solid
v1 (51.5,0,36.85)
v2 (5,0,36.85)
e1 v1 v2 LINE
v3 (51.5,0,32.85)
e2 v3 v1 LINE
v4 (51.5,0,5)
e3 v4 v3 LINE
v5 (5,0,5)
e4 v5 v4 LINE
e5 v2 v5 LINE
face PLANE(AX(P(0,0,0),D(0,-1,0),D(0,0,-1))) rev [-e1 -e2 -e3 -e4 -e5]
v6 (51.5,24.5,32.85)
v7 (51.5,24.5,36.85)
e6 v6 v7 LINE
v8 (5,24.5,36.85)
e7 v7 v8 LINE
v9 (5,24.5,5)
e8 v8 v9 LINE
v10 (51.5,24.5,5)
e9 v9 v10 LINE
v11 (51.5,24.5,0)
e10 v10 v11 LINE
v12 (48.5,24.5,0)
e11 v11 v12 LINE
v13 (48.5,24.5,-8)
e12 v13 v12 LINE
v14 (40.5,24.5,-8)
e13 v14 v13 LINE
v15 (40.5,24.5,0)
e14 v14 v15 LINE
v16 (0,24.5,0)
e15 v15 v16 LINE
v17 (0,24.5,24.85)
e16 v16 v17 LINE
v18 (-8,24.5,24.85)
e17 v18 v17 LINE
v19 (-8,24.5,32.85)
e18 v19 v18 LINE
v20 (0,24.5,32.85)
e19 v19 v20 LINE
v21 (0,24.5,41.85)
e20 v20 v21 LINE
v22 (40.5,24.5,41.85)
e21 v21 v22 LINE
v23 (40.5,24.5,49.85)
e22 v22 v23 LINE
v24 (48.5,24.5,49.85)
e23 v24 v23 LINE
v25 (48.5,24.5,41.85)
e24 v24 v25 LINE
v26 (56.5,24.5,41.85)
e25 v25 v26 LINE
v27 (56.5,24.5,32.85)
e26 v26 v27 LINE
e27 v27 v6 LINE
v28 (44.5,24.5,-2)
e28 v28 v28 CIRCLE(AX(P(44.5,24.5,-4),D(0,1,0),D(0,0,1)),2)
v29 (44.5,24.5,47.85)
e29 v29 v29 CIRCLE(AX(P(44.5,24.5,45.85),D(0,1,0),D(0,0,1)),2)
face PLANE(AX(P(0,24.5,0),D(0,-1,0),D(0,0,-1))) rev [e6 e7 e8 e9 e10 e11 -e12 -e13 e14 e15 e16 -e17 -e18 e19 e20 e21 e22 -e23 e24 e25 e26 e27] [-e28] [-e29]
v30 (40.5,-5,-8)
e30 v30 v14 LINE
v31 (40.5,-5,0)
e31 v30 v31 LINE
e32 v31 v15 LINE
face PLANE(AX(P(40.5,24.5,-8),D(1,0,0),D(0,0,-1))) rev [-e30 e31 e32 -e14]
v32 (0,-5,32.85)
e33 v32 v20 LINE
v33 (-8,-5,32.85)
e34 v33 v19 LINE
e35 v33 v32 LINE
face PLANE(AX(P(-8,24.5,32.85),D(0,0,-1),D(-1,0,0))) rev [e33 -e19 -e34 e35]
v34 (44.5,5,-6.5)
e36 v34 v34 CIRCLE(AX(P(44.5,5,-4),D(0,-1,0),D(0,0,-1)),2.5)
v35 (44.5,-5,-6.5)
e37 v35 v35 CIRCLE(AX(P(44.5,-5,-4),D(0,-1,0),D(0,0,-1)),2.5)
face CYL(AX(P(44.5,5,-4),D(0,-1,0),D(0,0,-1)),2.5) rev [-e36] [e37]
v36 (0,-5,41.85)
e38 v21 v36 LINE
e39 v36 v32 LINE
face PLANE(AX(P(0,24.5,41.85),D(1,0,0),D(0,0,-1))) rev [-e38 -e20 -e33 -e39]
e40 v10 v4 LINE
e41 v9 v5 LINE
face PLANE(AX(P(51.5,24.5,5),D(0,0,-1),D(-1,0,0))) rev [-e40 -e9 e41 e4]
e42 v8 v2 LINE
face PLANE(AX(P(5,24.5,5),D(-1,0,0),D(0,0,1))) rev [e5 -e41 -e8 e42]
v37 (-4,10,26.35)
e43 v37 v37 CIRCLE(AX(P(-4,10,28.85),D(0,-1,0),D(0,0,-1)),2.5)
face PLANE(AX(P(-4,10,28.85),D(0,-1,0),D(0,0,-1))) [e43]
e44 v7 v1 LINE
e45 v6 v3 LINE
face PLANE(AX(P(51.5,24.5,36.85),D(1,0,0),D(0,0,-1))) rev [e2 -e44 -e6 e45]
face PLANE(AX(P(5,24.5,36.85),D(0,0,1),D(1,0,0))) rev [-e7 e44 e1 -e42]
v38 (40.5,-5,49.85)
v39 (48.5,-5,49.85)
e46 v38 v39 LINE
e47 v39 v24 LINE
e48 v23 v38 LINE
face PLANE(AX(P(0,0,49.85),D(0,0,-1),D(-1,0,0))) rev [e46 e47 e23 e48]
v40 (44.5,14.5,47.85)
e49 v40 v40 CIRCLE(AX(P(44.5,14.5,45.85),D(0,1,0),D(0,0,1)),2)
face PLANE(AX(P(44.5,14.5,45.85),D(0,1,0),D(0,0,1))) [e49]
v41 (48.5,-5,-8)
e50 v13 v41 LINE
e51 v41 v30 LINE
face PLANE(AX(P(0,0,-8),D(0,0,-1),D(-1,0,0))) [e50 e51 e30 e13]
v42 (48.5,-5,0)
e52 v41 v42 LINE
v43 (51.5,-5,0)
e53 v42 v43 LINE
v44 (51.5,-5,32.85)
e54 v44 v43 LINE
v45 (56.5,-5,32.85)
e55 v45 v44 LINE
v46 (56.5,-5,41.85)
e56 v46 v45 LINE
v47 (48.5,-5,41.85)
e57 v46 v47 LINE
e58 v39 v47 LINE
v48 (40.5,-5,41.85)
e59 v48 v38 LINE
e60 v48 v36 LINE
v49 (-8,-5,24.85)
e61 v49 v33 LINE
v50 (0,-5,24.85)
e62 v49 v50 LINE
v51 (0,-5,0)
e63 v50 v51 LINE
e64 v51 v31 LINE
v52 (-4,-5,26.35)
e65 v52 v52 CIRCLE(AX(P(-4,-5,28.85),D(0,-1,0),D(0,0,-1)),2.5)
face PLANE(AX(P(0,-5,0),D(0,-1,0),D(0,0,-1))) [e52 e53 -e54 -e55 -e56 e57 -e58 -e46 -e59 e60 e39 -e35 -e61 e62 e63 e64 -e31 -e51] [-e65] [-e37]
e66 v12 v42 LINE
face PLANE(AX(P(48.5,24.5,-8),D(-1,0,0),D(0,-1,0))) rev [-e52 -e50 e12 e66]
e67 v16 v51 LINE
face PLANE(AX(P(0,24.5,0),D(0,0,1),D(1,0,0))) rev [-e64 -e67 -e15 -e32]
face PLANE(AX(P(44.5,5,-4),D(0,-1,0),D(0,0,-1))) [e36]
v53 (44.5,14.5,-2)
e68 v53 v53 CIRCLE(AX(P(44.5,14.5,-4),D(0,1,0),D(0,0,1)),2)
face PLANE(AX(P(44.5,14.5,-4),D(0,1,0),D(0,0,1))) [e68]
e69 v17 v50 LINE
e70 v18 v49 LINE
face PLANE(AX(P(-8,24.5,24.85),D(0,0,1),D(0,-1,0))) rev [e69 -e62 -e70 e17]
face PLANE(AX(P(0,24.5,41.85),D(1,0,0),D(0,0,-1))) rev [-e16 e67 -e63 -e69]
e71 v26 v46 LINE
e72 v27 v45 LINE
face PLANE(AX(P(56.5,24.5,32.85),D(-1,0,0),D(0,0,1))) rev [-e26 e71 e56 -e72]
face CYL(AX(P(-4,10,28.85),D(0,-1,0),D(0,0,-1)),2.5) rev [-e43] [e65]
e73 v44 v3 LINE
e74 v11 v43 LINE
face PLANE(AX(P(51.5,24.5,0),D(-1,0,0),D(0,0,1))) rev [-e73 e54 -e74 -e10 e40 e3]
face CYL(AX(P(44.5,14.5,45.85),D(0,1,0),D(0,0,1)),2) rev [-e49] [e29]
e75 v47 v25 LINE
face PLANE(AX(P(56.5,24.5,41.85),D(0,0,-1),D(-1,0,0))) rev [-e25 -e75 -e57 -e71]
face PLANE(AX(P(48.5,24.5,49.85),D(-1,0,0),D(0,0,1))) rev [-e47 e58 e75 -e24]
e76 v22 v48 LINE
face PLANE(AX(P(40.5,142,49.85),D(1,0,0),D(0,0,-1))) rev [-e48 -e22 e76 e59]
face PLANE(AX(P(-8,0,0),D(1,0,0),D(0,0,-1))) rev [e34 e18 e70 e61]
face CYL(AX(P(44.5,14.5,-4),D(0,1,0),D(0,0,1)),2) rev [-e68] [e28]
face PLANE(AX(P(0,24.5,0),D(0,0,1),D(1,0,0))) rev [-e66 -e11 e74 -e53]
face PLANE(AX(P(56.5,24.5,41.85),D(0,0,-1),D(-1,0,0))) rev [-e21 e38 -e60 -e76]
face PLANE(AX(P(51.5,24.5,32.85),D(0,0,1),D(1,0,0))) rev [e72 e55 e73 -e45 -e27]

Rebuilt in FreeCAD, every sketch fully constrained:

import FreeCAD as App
import Part
import Sketcher
from FreeCAD import Vector
Q = App.Units.Quantity

doc = App.newDocument("Part")
params = doc.addObject("Spreadsheet::Sheet", "Params")
for row, (alias, value) in enumerate([
    ("sketch1_width", "5 mm"),
    ("sketch1_height", "9 mm"),
    ("sketch1_height2", "4 mm"),
    ("sketch1_width2", "51.5 mm"),
    ("sketch1_width3", "46.5 mm"),
    ("pad1_length", "24.5 mm"),
    ("sketch2_width", "103 mm"),
    ("sketch2_height", "41.85 mm"),
    ("pad2_length", "5 mm"),
    ("sketch3_width", "46.5 mm"),
    ("sketch3_height", "27.85 mm"),
    ("pocket1_length", "26 mm"),
    ("sketch4_width", "8 mm"),
    ("sketch4_height", "3 mm"),
    ("pad3_length", "8 mm"),
    ("sketch5_diameter", "5 mm"),
    ("pocket2_length", "8 mm"),
    ("sketch6_width", "8 mm"),
    ("sketch6_height", "3 mm"),
    ("pad4_length", "8 mm"),
    ("sketch7_diameter", "5 mm"),
    ("pocket3_length", "8 mm"),
    ("sketch8_height", "5 mm"),
    ("sketch8_width", "11.5 mm"),
    ("pocket4_length", "8 mm"),
    ("sketch9_width", "8 mm"),
    ("sketch9_height", "3 mm"),
    ("pad5_length", "8 mm"),
    ("sketch10_diameter", "5 mm"),
    ("pocket5_length", "8 mm"),
    ("sketch11_width", "8 mm"),
    ("sketch11_height", "29.5 mm"),
    ("pad6_length", "8 mm"),
    ("sketch12_width", "14 mm"),
    ("sketch12_height", "29.5 mm"),
    ("pad7_length", "8 mm"),
    ("sketch13_diameter", "4 mm"),
    ("pocket6_length", "10 mm"),
    ("sketch14_height", "8 mm"),
    ("sketch14_width", "29.5 mm"),
    ("pad8_length", "8 mm"),
    ("sketch15_width", "13 mm"),
    ("pad9_length", "88 mm"),
    ("sketch16_width", "5 mm"),
    ("sketch16_height", "9 mm"),
    ("sketch16_width2", "51.5 mm"),
    ("sketch16_height2", "40.85 mm"),
    ("pocket7_length", "48 mm"),
    ("sketch17_diameter", "5 mm"),
    ("pocket8_length", "10 mm"),
    ("sketch18_width", "8 mm"),
    ("sketch18_height", "3 mm"),
    ("pocket9_length", "8 mm"),
    ("sketch19_height", "8 mm"),
    ("sketch19_width", "29.5 mm"),
    ("pad10_length", "8 mm"),
    ("sketch20_diameter", "5 mm"),
    ("pocket10_length", "15 mm"),
    ("sketch21_width", "13 mm"),
    ("pocket11_length", "88 mm"),
    ("sketch22_width", "14 mm"),
    ("sketch22_height", "8 mm"),
    ("pocket12_length", "147 mm"),
], start=1):
    params.set(f"A{row}", alias)
    params.set(f"B{row}", "=" + value)
    params.setAlias(f"B{row}", alias)

body = doc.addObject("PartDesign::Body", "Body")

# Sketch on XZ plane
sketch1 = body.newObject("Sketcher::SketchObject", "Sketch")
sketch1.AttachmentSupport = (doc.getObject("XZ_Plane"), [""])
sketch1.MapMode = "FlatFace"
sketch1.addGeometry(Part.LineSegment(Vector(51.5, 0, 0), Vector(0, 0, 0)), False)
sketch1.addGeometry(Part.LineSegment(Vector(0, 0, 0), Vector(0, 41.85, 0)), False)
sketch1.addGeometry(Part.LineSegment(Vector(0, 41.85, 0), Vector(56.5, 41.85, 0)), False)
sketch1.addGeometry(Part.LineSegment(Vector(56.5, 41.85, 0), Vector(56.5, 32.85, 0)), False)
sketch1.addGeometry(Part.LineSegment(Vector(56.5, 32.85, 0), Vector(51.5, 32.85, 0)), False)
sketch1.addGeometry(Part.LineSegment(Vector(51.5, 32.85, 0), Vector(51.5, 36.85, 0)), False)
sketch1.addGeometry(Part.LineSegment(Vector(51.5, 36.85, 0), Vector(5, 36.85, 0)), False)
sketch1.addGeometry(Part.LineSegment(Vector(5, 36.85, 0), Vector(5, 5, 0)), False)
sketch1.addGeometry(Part.LineSegment(Vector(5, 5, 0), Vector(51.5, 5, 0)), False)
sketch1.addGeometry(Part.LineSegment(Vector(51.5, 5, 0), Vector(51.5, 0, 0)), False)
sketch1.addConstraint(Sketcher.Constraint("Coincident", 0, 2, 1, 1))
sketch1.addConstraint(Sketcher.Constraint("Coincident", 1, 2, 2, 1))
sketch1.addConstraint(Sketcher.Constraint("Coincident", 2, 2, 3, 1))
sketch1.addConstraint(Sketcher.Constraint("Coincident", 3, 2, 4, 1))
sketch1.addConstraint(Sketcher.Constraint("Coincident", 4, 2, 5, 1))
sketch1.addConstraint(Sketcher.Constraint("Coincident", 5, 2, 6, 1))
sketch1.addConstraint(Sketcher.Constraint("Coincident", 6, 2, 7, 1))
sketch1.addConstraint(Sketcher.Constraint("Coincident", 7, 2, 8, 1))
sketch1.addConstraint(Sketcher.Constraint("Coincident", 8, 2, 9, 1))
sketch1.addConstraint(Sketcher.Constraint("Coincident", 9, 2, 0, 1))
sketch1.addConstraint(Sketcher.Constraint("Horizontal", 0))
sketch1.addConstraint(Sketcher.Constraint("Vertical", 1))
sketch1.addConstraint(Sketcher.Constraint("Horizontal", 2))
sketch1.addConstraint(Sketcher.Constraint("Vertical", 3))
sketch1.addConstraint(Sketcher.Constraint("Horizontal", 4))
sketch1.addConstraint(Sketcher.Constraint("Vertical", 5))
sketch1.addConstraint(Sketcher.Constraint("Horizontal", 6))
sketch1.addConstraint(Sketcher.Constraint("Vertical", 7))
sketch1.addConstraint(Sketcher.Constraint("Horizontal", 8))
sketch1.addConstraint(Sketcher.Constraint("Vertical", 9))
sketch1.addConstraint(Sketcher.Constraint("Coincident", 0, 2, -1, 1))
sketch1.addConstraint(Sketcher.Constraint("Vertical", 5, 2, 8, 2))
sketch1.addConstraint(Sketcher.Constraint("Equal", 4, 9))
sketch1.addConstraint(Sketcher.Constraint("DistanceX", 4, 2, 4, 1, Q("5 mm")))
sketch1.addConstraint(Sketcher.Constraint("DistanceY", 3, 2, 3, 1, Q("9 mm")))
sketch1.addConstraint(Sketcher.Constraint("DistanceY", 5, 1, 5, 2, Q("4 mm")))
sketch1.addConstraint(Sketcher.Constraint("DistanceX", 0, 2, 0, 1, Q("51.5 mm")))
sketch1.addConstraint(Sketcher.Constraint("DistanceX", 6, 2, 6, 1, Q("46.5 mm")))
sketch1.addConstraint(Sketcher.Constraint("DistanceY", 1, 1, 1, 2, Q("41.85 mm")))
sketch1.setExpression("Constraints[23]", "Params.sketch1_width")
sketch1.setExpression("Constraints[24]", "Params.sketch1_height")
sketch1.setExpression("Constraints[25]", "Params.sketch1_height2")
sketch1.setExpression("Constraints[26]", "Params.sketch1_width2")
sketch1.setExpression("Constraints[27]", "Params.sketch1_width3")
pad1 = body.newObject("PartDesign::Pad", "Pad")
pad1.Profile = sketch1
pad1.setExpression("Length", "Params.pad1_length")
pad1.Reversed = True

# Sketch on XZ plane
sketch2 = body.newObject("Sketcher::SketchObject", "Sketch001")
sketch2.AttachmentSupport = (doc.getObject("XZ_Plane"), [""])
sketch2.MapMode = "FlatFace"
sketch2.addGeometry(Part.LineSegment(Vector(0, 41.85, 0), Vector(0, 0, 0)), False)
sketch2.addGeometry(Part.LineSegment(Vector(0, 0, 0), Vector(103, 0, 0)), False)
sketch2.addGeometry(Part.LineSegment(Vector(103, 0, 0), Vector(103, 41.85, 0)), False)
sketch2.addGeometry(Part.LineSegment(Vector(103, 41.85, 0), Vector(0, 41.85, 0)), False)
sketch2.addConstraint(Sketcher.Constraint("Coincident", 0, 2, 1, 1))
sketch2.addConstraint(Sketcher.Constraint("Coincident", 1, 2, 2, 1))
sketch2.addConstraint(Sketcher.Constraint("Coincident", 2, 2, 3, 1))
sketch2.addConstraint(Sketcher.Constraint("Coincident", 3, 2, 0, 1))
sketch2.addConstraint(Sketcher.Constraint("Vertical", 0))
sketch2.addConstraint(Sketcher.Constraint("Horizontal", 1))
sketch2.addConstraint(Sketcher.Constraint("Vertical", 2))
sketch2.addConstraint(Sketcher.Constraint("Horizontal", 3))
sketch2.addConstraint(Sketcher.Constraint("Coincident", 0, 2, -1, 1))
sketch2.addConstraint(Sketcher.Constraint("DistanceX", 1, 1, 1, 2, Q("103 mm")))
sketch2.addConstraint(Sketcher.Constraint("DistanceY", 0, 2, 0, 1, Q("41.85 mm")))
sketch2.setExpression("Constraints[9]", "Params.sketch2_width")
sketch2.setExpression("Constraints[10]", "Params.sketch2_height")
pad2 = body.newObject("PartDesign::Pad", "Pad001")
pad2.Profile = sketch2
pad2.setExpression("Length", "Params.pad2_length")

# Sketch on XZ plane
sketch3 = body.newObject("Sketcher::SketchObject", "Sketch002")
sketch3.AttachmentSupport = (doc.getObject("XZ_Plane"), [""])
sketch3.MapMode = "FlatFace"
sketch3.addGeometry(Part.LineSegment(Vector(51.5, 5, 0), Vector(51.5, 32.85, 0)), False)
sketch3.addGeometry(Part.LineSegment(Vector(51.5, 32.85, 0), Vector(98, 32.85, 0)), False)
sketch3.addGeometry(Part.LineSegment(Vector(98, 32.85, 0), Vector(98, 5, 0)), False)
sketch3.addGeometry(Part.LineSegment(Vector(98, 5, 0), Vector(51.5, 5, 0)), False)
sketch3.addConstraint(Sketcher.Constraint("Coincident", 0, 2, 1, 1))
sketch3.addConstraint(Sketcher.Constraint("Coincident", 1, 2, 2, 1))
sketch3.addConstraint(Sketcher.Constraint("Coincident", 2, 2, 3, 1))
sketch3.addConstraint(Sketcher.Constraint("Coincident", 3, 2, 0, 1))
sketch3.addConstraint(Sketcher.Constraint("Vertical", 0))
sketch3.addConstraint(Sketcher.Constraint("Horizontal", 1))
sketch3.addConstraint(Sketcher.Constraint("Vertical", 2))
sketch3.addConstraint(Sketcher.Constraint("Horizontal", 3))
sketch3.addConstraint(Sketcher.Constraint("DistanceX", 1, 1, 1, 2, Q("46.5 mm")))
sketch3.addConstraint(Sketcher.Constraint("DistanceX", -1, 1, 1, 2, Q("98 mm")))
sketch3.addConstraint(Sketcher.Constraint("DistanceY", -1, 1, 2, 2, Q("5 mm")))
sketch3.addConstraint(Sketcher.Constraint("DistanceY", 0, 1, 0, 2, Q("27.85 mm")))
sketch3.setExpression("Constraints[8]", "Params.sketch3_width")
sketch3.setExpression("Constraints[11]", "Params.sketch3_height")
pocket1 = body.newObject("PartDesign::Pocket", "Pocket")
pocket1.Profile = sketch3
pocket1.setExpression("Length", "Params.pocket1_length")
pocket1.Reversed = True

# Sketch on XY plane
sketch4 = body.newObject("Sketcher::SketchObject", "Sketch003")
sketch4.AttachmentSupport = (doc.getObject("XY_Plane"), [""])
sketch4.MapMode = "FlatFace"
sketch4.AttachmentOffset = App.Placement(Vector(0, 0, 41.85), App.Rotation())
sketch4.addGeometry(Part.LineSegment(Vector(0, -2, 0), Vector(0, -5, 0)), False)
sketch4.addGeometry(Part.LineSegment(Vector(0, -5, 0), Vector(8, -5, 0)), False)
sketch4.addGeometry(Part.LineSegment(Vector(8, -5, 0), Vector(8, -2, 0)), False)
sketch4.addGeometry(Part.LineSegment(Vector(8, -2, 0), Vector(0, -2, 0)), False)
sketch4.addConstraint(Sketcher.Constraint("Coincident", 0, 2, 1, 1))
sketch4.addConstraint(Sketcher.Constraint("Coincident", 1, 2, 2, 1))
sketch4.addConstraint(Sketcher.Constraint("Coincident", 2, 2, 3, 1))
sketch4.addConstraint(Sketcher.Constraint("Coincident", 3, 2, 0, 1))
sketch4.addConstraint(Sketcher.Constraint("Vertical", 0))
sketch4.addConstraint(Sketcher.Constraint("Horizontal", 1))
sketch4.addConstraint(Sketcher.Constraint("Vertical", 2))
sketch4.addConstraint(Sketcher.Constraint("Horizontal", 3))
sketch4.addConstraint(Sketcher.Constraint("PointOnObject", 0, 2, -2))
sketch4.addConstraint(Sketcher.Constraint("DistanceX", 1, 1, 1, 2, Q("8 mm")))
sketch4.addConstraint(Sketcher.Constraint("DistanceY", 0, 2, 0, 1, Q("3 mm")))
sketch4.addConstraint(Sketcher.Constraint("DistanceY", 0, 2, -1, 1, Q("5 mm")))
sketch4.setExpression("Constraints[9]", "Params.sketch4_width")
sketch4.setExpression("Constraints[10]", "Params.sketch4_height")
pad3 = body.newObject("PartDesign::Pad", "Pad002")
pad3.Profile = sketch4
pad3.setExpression("Length", "Params.pad3_length")

# Sketch on XZ plane
sketch5 = body.newObject("Sketcher::SketchObject", "Sketch004")
sketch5.AttachmentSupport = (doc.getObject("XZ_Plane"), [""])
sketch5.MapMode = "FlatFace"
sketch5.AttachmentOffset = App.Placement(Vector(0, 0, 2), App.Rotation())
sketch5.addGeometry(Part.Circle(Vector(4, 45.85, 0), Vector(0, 0, 1), 2.5), False)
sketch5.addConstraint(Sketcher.Constraint("Diameter", 0, Q("5 mm")))
sketch5.addConstraint(Sketcher.Constraint("DistanceX", -1, 1, 0, 3, Q("4 mm")))
sketch5.addConstraint(Sketcher.Constraint("DistanceY", -1, 1, 0, 3, Q("45.85 mm")))
sketch5.setExpression("Constraints[0]", "Params.sketch5_diameter")
pocket2 = body.newObject("PartDesign::Pocket", "Pocket001")
pocket2.Profile = sketch5
pocket2.setExpression("Length", "Params.pocket2_length")
pocket2.Reversed = True

# Sketch on XY plane
sketch6 = body.newObject("Sketcher::SketchObject", "Sketch005")
sketch6.AttachmentSupport = (doc.getObject("XY_Plane"), [""])
sketch6.MapMode = "FlatFace"
sketch6.addGeometry(Part.LineSegment(Vector(103, -2, 0), Vector(103, -5, 0)), False)
sketch6.addGeometry(Part.LineSegment(Vector(103, -5, 0), Vector(95, -5, 0)), False)
sketch6.addGeometry(Part.LineSegment(Vector(95, -5, 0), Vector(95, -2, 0)), False)
sketch6.addGeometry(Part.LineSegment(Vector(95, -2, 0), Vector(103, -2, 0)), False)
sketch6.addConstraint(Sketcher.Constraint("Coincident", 0, 2, 1, 1))
sketch6.addConstraint(Sketcher.Constraint("Coincident", 1, 2, 2, 1))
sketch6.addConstraint(Sketcher.Constraint("Coincident", 2, 2, 3, 1))
sketch6.addConstraint(Sketcher.Constraint("Coincident", 3, 2, 0, 1))
sketch6.addConstraint(Sketcher.Constraint("Vertical", 0))
sketch6.addConstraint(Sketcher.Constraint("Horizontal", 1))
sketch6.addConstraint(Sketcher.Constraint("Vertical", 2))
sketch6.addConstraint(Sketcher.Constraint("Horizontal", 3))
sketch6.addConstraint(Sketcher.Constraint("DistanceX", 1, 2, 1, 1, Q("8 mm")))
sketch6.addConstraint(Sketcher.Constraint("DistanceY", 0, 2, 0, 1, Q("3 mm")))
sketch6.addConstraint(Sketcher.Constraint("DistanceX", -1, 1, 0, 2, Q("103 mm")))
sketch6.addConstraint(Sketcher.Constraint("DistanceY", 0, 2, -1, 1, Q("5 mm")))
sketch6.setExpression("Constraints[8]", "Params.sketch6_width")
sketch6.setExpression("Constraints[9]", "Params.sketch6_height")
pad4 = body.newObject("PartDesign::Pad", "Pad003")
pad4.Profile = sketch6
pad4.setExpression("Length", "Params.pad4_length")
pad4.Reversed = True

# Sketch on XZ plane
sketch7 = body.newObject("Sketcher::SketchObject", "Sketch006")
sketch7.AttachmentSupport = (doc.getObject("XZ_Plane"), [""])
sketch7.MapMode = "FlatFace"
sketch7.AttachmentOffset = App.Placement(Vector(0, 0, 2), App.Rotation())
sketch7.addGeometry(Part.Circle(Vector(99, -3.996681, 0), Vector(0, 0, 1), 2.5), False)
sketch7.addConstraint(Sketcher.Constraint("Diameter", 0, Q("5 mm")))
sketch7.addConstraint(Sketcher.Constraint("DistanceX", -1, 1, 0, 3, Q("99 mm")))
sketch7.addConstraint(Sketcher.Constraint("DistanceY", 0, 3, -1, 1, Q("3.996681 mm")))
sketch7.setExpression("Constraints[0]", "Params.sketch7_diameter")
pocket3 = body.newObject("PartDesign::Pocket", "Pocket002")
pocket3.Profile = sketch7
pocket3.setExpression("Length", "Params.pocket3_length")
pocket3.Reversed = True

# Sketch on XZ plane
sketch8 = body.newObject("Sketcher::SketchObject", "Sketch007")
sketch8.AttachmentSupport = (doc.getObject("XZ_Plane"), [""])
sketch8.MapMode = "FlatFace"
sketch8.addGeometry(Part.LineSegment(Vector(83.5, 0, 0), Vector(83.5, 5, 0)), False)
sketch8.addGeometry(Part.LineSegment(Vector(83.5, 5, 0), Vector(95, 5, 0)), False)
sketch8.addGeometry(Part.LineSegment(Vector(95, 5, 0), Vector(95, 0, 0)), False)
sketch8.addGeometry(Part.LineSegment(Vector(95, 0, 0), Vector(83.5, 0, 0)), False)
sketch8.addConstraint(Sketcher.Constraint("Coincident", 0, 2, 1, 1))
sketch8.addConstraint(Sketcher.Constraint("Coincident", 1, 2, 2, 1))
sketch8.addConstraint(Sketcher.Constraint("Coincident", 2, 2, 3, 1))
sketch8.addConstraint(Sketcher.Constraint("Coincident", 3, 2, 0, 1))
sketch8.addConstraint(Sketcher.Constraint("Vertical", 0))
sketch8.addConstraint(Sketcher.Constraint("Horizontal", 1))
sketch8.addConstraint(Sketcher.Constraint("Vertical", 2))
sketch8.addConstraint(Sketcher.Constraint("Horizontal", 3))
sketch8.addConstraint(Sketcher.Constraint("PointOnObject", 2, 2, -1))
sketch8.addConstraint(Sketcher.Constraint("DistanceY", 0, 1, 0, 2, Q("5 mm")))
sketch8.addConstraint(Sketcher.Constraint("DistanceX", 1, 1, 1, 2, Q("11.5 mm")))
sketch8.addConstraint(Sketcher.Constraint("DistanceX", -1, 1, 1, 2, Q("95 mm")))
sketch8.setExpression("Constraints[9]", "Params.sketch8_height")
sketch8.setExpression("Constraints[10]", "Params.sketch8_width")
pocket4 = body.newObject("PartDesign::Pocket", "Pocket003")
pocket4.Profile = sketch8
pocket4.setExpression("Length", "Params.pocket4_length")
pocket4.Reversed = True

# Sketch on XY plane
sketch9 = body.newObject("Sketcher::SketchObject", "Sketch008")
sketch9.AttachmentSupport = (doc.getObject("XY_Plane"), [""])
sketch9.MapMode = "FlatFace"
sketch9.addGeometry(Part.LineSegment(Vector(83.5, -2, 0), Vector(83.5, -5, 0)), False)
sketch9.addGeometry(Part.LineSegment(Vector(83.5, -5, 0), Vector(75.5, -5, 0)), False)
sketch9.addGeometry(Part.LineSegment(Vector(75.5, -5, 0), Vector(75.5, -2, 0)), False)
sketch9.addGeometry(Part.LineSegment(Vector(75.5, -2, 0), Vector(83.5, -2, 0)), False)
sketch9.addConstraint(Sketcher.Constraint("Coincident", 0, 2, 1, 1))
sketch9.addConstraint(Sketcher.Constraint("Coincident", 1, 2, 2, 1))
sketch9.addConstraint(Sketcher.Constraint("Coincident", 2, 2, 3, 1))
sketch9.addConstraint(Sketcher.Constraint("Coincident", 3, 2, 0, 1))
sketch9.addConstraint(Sketcher.Constraint("Vertical", 0))
sketch9.addConstraint(Sketcher.Constraint("Horizontal", 1))
sketch9.addConstraint(Sketcher.Constraint("Vertical", 2))
sketch9.addConstraint(Sketcher.Constraint("Horizontal", 3))
sketch9.addConstraint(Sketcher.Constraint("DistanceX", 1, 2, 1, 1, Q("8 mm")))
sketch9.addConstraint(Sketcher.Constraint("DistanceY", 0, 2, 0, 1, Q("3 mm")))
sketch9.addConstraint(Sketcher.Constraint("DistanceY", 0, 2, -1, 1, Q("5 mm")))
sketch9.addConstraint(Sketcher.Constraint("DistanceX", -1, 1, 0, 2, Q("83.5 mm")))
sketch9.setExpression("Constraints[8]", "Params.sketch9_width")
sketch9.setExpression("Constraints[9]", "Params.sketch9_height")
pad5 = body.newObject("PartDesign::Pad", "Pad004")
pad5.Profile = sketch9
pad5.setExpression("Length", "Params.pad5_length")
pad5.Reversed = True

# Sketch on XZ plane
sketch10 = body.newObject("Sketcher::SketchObject", "Sketch009")
sketch10.AttachmentSupport = (doc.getObject("XZ_Plane"), [""])
sketch10.MapMode = "FlatFace"
sketch10.AttachmentOffset = App.Placement(Vector(0, 0, 2), App.Rotation())
sketch10.addGeometry(Part.Circle(Vector(79.5, -4, 0), Vector(0, 0, 1), 2.5), False)
sketch10.addConstraint(Sketcher.Constraint("Diameter", 0, Q("5 mm")))
sketch10.addConstraint(Sketcher.Constraint("DistanceY", 0, 3, -1, 1, Q("4 mm")))
sketch10.addConstraint(Sketcher.Constraint("DistanceX", -1, 1, 0, 3, Q("79.5 mm")))
sketch10.setExpression("Constraints[0]", "Params.sketch10_diameter")
pocket5 = body.newObject("PartDesign::Pocket", "Pocket004")
pocket5.Profile = sketch10
pocket5.setExpression("Length", "Params.pocket5_length")
pocket5.Reversed = True

# Sketch on XY plane
sketch11 = body.newObject("Sketcher::SketchObject", "Sketch010")
sketch11.AttachmentSupport = (doc.getObject("XY_Plane"), [""])
sketch11.MapMode = "FlatFace"
sketch11.addGeometry(Part.LineSegment(Vector(48.5, 24.5, 0), Vector(48.5, -5, 0)), False)
sketch11.addGeometry(Part.LineSegment(Vector(48.5, -5, 0), Vector(40.5, -5, 0)), False)
sketch11.addGeometry(Part.LineSegment(Vector(40.5, -5, 0), Vector(40.5, 24.5, 0)), False)
sketch11.addGeometry(Part.LineSegment(Vector(40.5, 24.5, 0), Vector(48.5, 24.5, 0)), False)
sketch11.addConstraint(Sketcher.Constraint("Coincident", 0, 2, 1, 1))
sketch11.addConstraint(Sketcher.Constraint("Coincident", 1, 2, 2, 1))
sketch11.addConstraint(Sketcher.Constraint("Coincident", 2, 2, 3, 1))
sketch11.addConstraint(Sketcher.Constraint("Coincident", 3, 2, 0, 1))
sketch11.addConstraint(Sketcher.Constraint("Vertical", 0))
sketch11.addConstraint(Sketcher.Constraint("Horizontal", 1))
sketch11.addConstraint(Sketcher.Constraint("Vertical", 2))
sketch11.addConstraint(Sketcher.Constraint("Horizontal", 3))
sketch11.addConstraint(Sketcher.Constraint("DistanceX", 1, 2, 1, 1, Q("8 mm")))
sketch11.addConstraint(Sketcher.Constraint("DistanceY", 0, 2, 0, 1, Q("29.5 mm")))
sketch11.addConstraint(Sketcher.Constraint("DistanceY", 0, 2, -1, 1, Q("5 mm")))
sketch11.addConstraint(Sketcher.Constraint("DistanceX", -1, 1, 0, 2, Q("48.5 mm")))
sketch11.setExpression("Constraints[8]", "Params.sketch11_width")
sketch11.setExpression("Constraints[9]", "Params.sketch11_height")
pad6 = body.newObject("PartDesign::Pad", "Pad005")
pad6.Profile = sketch11
pad6.setExpression("Length", "Params.pad6_length")
pad6.Reversed = True

# Sketch on XY plane
sketch12 = body.newObject("Sketcher::SketchObject", "Sketch011")
sketch12.AttachmentSupport = (doc.getObject("XY_Plane"), [""])
sketch12.MapMode = "FlatFace"
sketch12.AttachmentOffset = App.Placement(Vector(0, 0, 41.85), App.Rotation())
sketch12.addGeometry(Part.LineSegment(Vector(34.5, 24.5, 0), Vector(34.5, -5, 0)), False)
sketch12.addGeometry(Part.LineSegment(Vector(34.5, -5, 0), Vector(48.5, -5, 0)), False)
sketch12.addGeometry(Part.LineSegment(Vector(48.5, -5, 0), Vector(48.5, 24.5, 0)), False)
sketch12.addGeometry(Part.LineSegment(Vector(48.5, 24.5, 0), Vector(34.5, 24.5, 0)), False)
sketch12.addConstraint(Sketcher.Constraint("Coincident", 0, 2, 1, 1))
sketch12.addConstraint(Sketcher.Constraint("Coincident", 1, 2, 2, 1))
sketch12.addConstraint(Sketcher.Constraint("Coincident", 2, 2, 3, 1))
sketch12.addConstraint(Sketcher.Constraint("Coincident", 3, 2, 0, 1))
sketch12.addConstraint(Sketcher.Constraint("Vertical", 0))
sketch12.addConstraint(Sketcher.Constraint("Horizontal", 1))
sketch12.addConstraint(Sketcher.Constraint("Vertical", 2))
sketch12.addConstraint(Sketcher.Constraint("Horizontal", 3))
sketch12.addConstraint(Sketcher.Constraint("DistanceX", 1, 1, 1, 2, Q("14 mm")))
sketch12.addConstraint(Sketcher.Constraint("DistanceY", 0, 2, 0, 1, Q("29.5 mm")))
sketch12.addConstraint(Sketcher.Constraint("DistanceY", 0, 2, -1, 1, Q("5 mm")))
sketch12.addConstraint(Sketcher.Constraint("DistanceX", -1, 1, 0, 2, Q("34.5 mm")))
sketch12.setExpression("Constraints[8]", "Params.sketch12_width")
sketch12.setExpression("Constraints[9]", "Params.sketch12_height")
pad7 = body.newObject("PartDesign::Pad", "Pad006")
pad7.Profile = sketch12
pad7.setExpression("Length", "Params.pad7_length")

# Sketch on XZ plane
sketch13 = body.newObject("Sketcher::SketchObject", "Sketch012")
sketch13.AttachmentSupport = (doc.getObject("XZ_Plane"), [""])
sketch13.MapMode = "FlatFace"
sketch13.AttachmentOffset = App.Placement(Vector(0, 0, -24.5), App.Rotation())
sketch13.addGeometry(Part.Circle(Vector(44.5, -4, 0), Vector(0, 0, 1), 2), False)
sketch13.addGeometry(Part.Circle(Vector(44.5, 45.85, 0), Vector(0, 0, 1), 2), False)
sketch13.addConstraint(Sketcher.Constraint("Equal", 0, 1))
sketch13.addConstraint(Sketcher.Constraint("Vertical", 0, 3, 1, 3))
sketch13.addConstraint(Sketcher.Constraint("Diameter", 0, Q("4 mm")))
sketch13.addConstraint(Sketcher.Constraint("DistanceY", 0, 3, -1, 1, Q("4 mm")))
sketch13.addConstraint(Sketcher.Constraint("DistanceX", -1, 1, 0, 3, Q("44.5 mm")))
sketch13.addConstraint(Sketcher.Constraint("DistanceY", -1, 1, 1, 3, Q("45.85 mm")))
sketch13.setExpression("Constraints[2]", "Params.sketch13_diameter")
pocket6 = body.newObject("PartDesign::Pocket", "Pocket005")
pocket6.Profile = sketch13
pocket6.setExpression("Length", "Params.pocket6_length")
pocket6.Reversed = True

# Sketch on YZ plane
sketch14 = body.newObject("Sketcher::SketchObject", "Sketch013")
sketch14.AttachmentSupport = (doc.getObject("YZ_Plane"), [""])
sketch14.MapMode = "FlatFace"
sketch14.AttachmentOffset = App.Placement(Vector(0, 0, 34.5), App.Rotation())
sketch14.addGeometry(Part.LineSegment(Vector(24.5, 41.85, 0), Vector(-5, 41.85, 0)), False)
sketch14.addGeometry(Part.LineSegment(Vector(-5, 41.85, 0), Vector(-5, 49.85, 0)), False)
sketch14.addGeometry(Part.LineSegment(Vector(-5, 49.85, 0), Vector(24.5, 49.85, 0)), False)
sketch14.addGeometry(Part.LineSegment(Vector(24.5, 49.85, 0), Vector(24.5, 41.85, 0)), False)
sketch14.addConstraint(Sketcher.Constraint("Coincident", 0, 2, 1, 1))
sketch14.addConstraint(Sketcher.Constraint("Coincident", 1, 2, 2, 1))
sketch14.addConstraint(Sketcher.Constraint("Coincident", 2, 2, 3, 1))
sketch14.addConstraint(Sketcher.Constraint("Coincident", 3, 2, 0, 1))
sketch14.addConstraint(Sketcher.Constraint("Horizontal", 0))
sketch14.addConstraint(Sketcher.Constraint("Vertical", 1))
sketch14.addConstraint(Sketcher.Constraint("Horizontal", 2))
sketch14.addConstraint(Sketcher.Constraint("Vertical", 3))
sketch14.addConstraint(Sketcher.Constraint("DistanceY", 1, 1, 1, 2, Q("8 mm")))
sketch14.addConstraint(Sketcher.Constraint("DistanceX", 0, 2, 0, 1, Q("29.5 mm")))
sketch14.addConstraint(Sketcher.Constraint("DistanceX", 0, 2, -1, 1, Q("5 mm")))
sketch14.addConstraint(Sketcher.Constraint("DistanceY", -1, 1, 0, 2, Q("41.85 mm")))
sketch14.setExpression("Constraints[8]", "Params.sketch14_height")
sketch14.setExpression("Constraints[9]", "Params.sketch14_width")
pad8 = body.newObject("PartDesign::Pad", "Pad007")
pad8.Profile = sketch14
pad8.setExpression("Length", "Params.pad8_length")
pad8.Reversed = True

# Sketch on XZ plane
sketch15 = body.newObject("Sketcher::SketchObject", "Sketch014")
sketch15.AttachmentSupport = (doc.getObject("XZ_Plane"), [""])
sketch15.MapMode = "FlatFace"
sketch15.AttachmentOffset = App.Placement(Vector(0, 0, -24.5), App.Rotation())
sketch15.addGeometry(Part.LineSegment(Vector(26.5, 36.85, 0), Vector(26.5, 49.85, 0)), False)
sketch15.addGeometry(Part.LineSegment(Vector(26.5, 49.85, 0), Vector(39.5, 49.85, 0)), False)
sketch15.addGeometry(Part.LineSegment(Vector(39.5, 49.85, 0), Vector(39.5, 36.85, 0)), False)
sketch15.addGeometry(Part.LineSegment(Vector(39.5, 36.85, 0), Vector(26.5, 36.85, 0)), False)
sketch15.addConstraint(Sketcher.Constraint("Coincident", 0, 2, 1, 1))
sketch15.addConstraint(Sketcher.Constraint("Coincident", 1, 2, 2, 1))
sketch15.addConstraint(Sketcher.Constraint("Coincident", 2, 2, 3, 1))
sketch15.addConstraint(Sketcher.Constraint("Coincident", 3, 2, 0, 1))
sketch15.addConstraint(Sketcher.Constraint("Vertical", 0))
sketch15.addConstraint(Sketcher.Constraint("Horizontal", 1))
sketch15.addConstraint(Sketcher.Constraint("Vertical", 2))
sketch15.addConstraint(Sketcher.Constraint("Horizontal", 3))
sketch15.addConstraint(Sketcher.Constraint("Equal", 3, 0))
sketch15.addConstraint(Sketcher.Constraint("DistanceX", 1, 1, 1, 2, Q("13 mm")))
sketch15.addConstraint(Sketcher.Constraint("DistanceX", -1, 1, 0, 2, Q("26.5 mm")))
sketch15.addConstraint(Sketcher.Constraint("DistanceY", -1, 1, 0, 2, Q("49.85 mm")))
sketch15.setExpression("Constraints[9]", "Params.sketch15_width")
pad9 = body.newObject("PartDesign::Pad", "Pad008")
pad9.Profile = sketch15
pad9.setExpression("Length", "Params.pad9_length")
pad9.Reversed = True

# Sketch on XZ plane
sketch16 = body.newObject("Sketcher::SketchObject", "Sketch015")
sketch16.AttachmentSupport = (doc.getObject("XZ_Plane"), [""])
sketch16.MapMode = "FlatFace"
sketch16.addGeometry(Part.LineSegment(Vector(103, -8, 0), Vector(51.5, -8, 0)), False)
sketch16.addGeometry(Part.LineSegment(Vector(51.5, -8, 0), Vector(51.5, 32.85, 0)), False)
sketch16.addGeometry(Part.LineSegment(Vector(51.5, 32.85, 0), Vector(56.5, 32.85, 0)), False)
sketch16.addGeometry(Part.LineSegment(Vector(56.5, 32.85, 0), Vector(56.5, 41.85, 0)), False)
sketch16.addGeometry(Part.LineSegment(Vector(56.5, 41.85, 0), Vector(103, 41.85, 0)), False)
sketch16.addGeometry(Part.LineSegment(Vector(103, 41.85, 0), Vector(103, -8, 0)), False)
sketch16.addConstraint(Sketcher.Constraint("Coincident", 0, 2, 1, 1))
sketch16.addConstraint(Sketcher.Constraint("Coincident", 1, 2, 2, 1))
sketch16.addConstraint(Sketcher.Constraint("Coincident", 2, 2, 3, 1))
sketch16.addConstraint(Sketcher.Constraint("Coincident", 3, 2, 4, 1))
sketch16.addConstraint(Sketcher.Constraint("Coincident", 4, 2, 5, 1))
sketch16.addConstraint(Sketcher.Constraint("Coincident", 5, 2, 0, 1))
sketch16.addConstraint(Sketcher.Constraint("Horizontal", 0))
sketch16.addConstraint(Sketcher.Constraint("Vertical", 1))
sketch16.addConstraint(Sketcher.Constraint("Horizontal", 2))
sketch16.addConstraint(Sketcher.Constraint("Vertical", 3))
sketch16.addConstraint(Sketcher.Constraint("Horizontal", 4))
sketch16.addConstraint(Sketcher.Constraint("Vertical", 5))
sketch16.addConstraint(Sketcher.Constraint("DistanceX", 2, 1, 2, 2, Q("5 mm")))
sketch16.addConstraint(Sketcher.Constraint("DistanceY", 3, 1, 3, 2, Q("9 mm")))
sketch16.addConstraint(Sketcher.Constraint("DistanceX", 0, 2, 0, 1, Q("51.5 mm")))
sketch16.addConstraint(Sketcher.Constraint("DistanceY", 0, 2, -1, 1, Q("8 mm")))
sketch16.addConstraint(Sketcher.Constraint("DistanceX", -1, 1, 4, 2, Q("103 mm")))
sketch16.addConstraint(Sketcher.Constraint("DistanceY", 1, 1, 1, 2, Q("40.85 mm")))
sketch16.setExpression("Constraints[12]", "Params.sketch16_width")
sketch16.setExpression("Constraints[13]", "Params.sketch16_height")
sketch16.setExpression("Constraints[14]", "Params.sketch16_width2")
sketch16.setExpression("Constraints[17]", "Params.sketch16_height2")
pocket7 = body.newObject("PartDesign::Pocket", "Pocket006")
pocket7.Profile = sketch16
pocket7.setExpression("Length", "Params.pocket7_length")
pocket7.Reversed = True

# Sketch on XZ plane
sketch17 = body.newObject("Sketcher::SketchObject", "Sketch016")
sketch17.AttachmentSupport = (doc.getObject("XZ_Plane"), [""])
sketch17.MapMode = "FlatFace"
sketch17.AttachmentOffset = App.Placement(Vector(0, 0, 5), App.Rotation())
sketch17.addGeometry(Part.Circle(Vector(44.5, -4, 0), Vector(0, 0, 1), 2.5), False)
sketch17.addConstraint(Sketcher.Constraint("Diameter", 0, Q("5 mm")))
sketch17.addConstraint(Sketcher.Constraint("DistanceY", 0, 3, -1, 1, Q("4 mm")))
sketch17.addConstraint(Sketcher.Constraint("DistanceX", -1, 1, 0, 3, Q("44.5 mm")))
sketch17.setExpression("Constraints[0]", "Params.sketch17_diameter")
pocket8 = body.newObject("PartDesign::Pocket", "Pocket007")
pocket8.Profile = sketch17
pocket8.setExpression("Length", "Params.pocket8_length")

# Sketch on XY plane
sketch18 = body.newObject("Sketcher::SketchObject", "Sketch017")
sketch18.AttachmentSupport = (doc.getObject("XY_Plane"), [""])
sketch18.MapMode = "FlatFace"
sketch18.AttachmentOffset = App.Placement(Vector(0, 0, 49.85), App.Rotation())
sketch18.addGeometry(Part.LineSegment(Vector(0, -2, 0), Vector(0, -5, 0)), False)
sketch18.addGeometry(Part.LineSegment(Vector(0, -5, 0), Vector(8, -5, 0)), False)
sketch18.addGeometry(Part.LineSegment(Vector(8, -5, 0), Vector(8, -2, 0)), False)
sketch18.addGeometry(Part.LineSegment(Vector(8, -2, 0), Vector(0, -2, 0)), False)
sketch18.addConstraint(Sketcher.Constraint("Coincident", 0, 2, 1, 1))
sketch18.addConstraint(Sketcher.Constraint("Coincident", 1, 2, 2, 1))
sketch18.addConstraint(Sketcher.Constraint("Coincident", 2, 2, 3, 1))
sketch18.addConstraint(Sketcher.Constraint("Coincident", 3, 2, 0, 1))
sketch18.addConstraint(Sketcher.Constraint("Vertical", 0))
sketch18.addConstraint(Sketcher.Constraint("Horizontal", 1))
sketch18.addConstraint(Sketcher.Constraint("Vertical", 2))
sketch18.addConstraint(Sketcher.Constraint("Horizontal", 3))
sketch18.addConstraint(Sketcher.Constraint("PointOnObject", 0, 2, -2))
sketch18.addConstraint(Sketcher.Constraint("DistanceX", 1, 1, 1, 2, Q("8 mm")))
sketch18.addConstraint(Sketcher.Constraint("DistanceY", 0, 2, 0, 1, Q("3 mm")))
sketch18.addConstraint(Sketcher.Constraint("DistanceY", 0, 2, -1, 1, Q("5 mm")))
sketch18.setExpression("Constraints[9]", "Params.sketch18_width")
sketch18.setExpression("Constraints[10]", "Params.sketch18_height")
pocket9 = body.newObject("PartDesign::Pocket", "Pocket008")
pocket9.Profile = sketch18
pocket9.setExpression("Length", "Params.pocket9_length")

# Sketch on YZ plane
sketch19 = body.newObject("Sketcher::SketchObject", "Sketch018")
sketch19.AttachmentSupport = (doc.getObject("YZ_Plane"), [""])
sketch19.MapMode = "FlatFace"
sketch19.addGeometry(Part.LineSegment(Vector(24.5, 24.85, 0), Vector(-5, 24.85, 0)), False)
sketch19.addGeometry(Part.LineSegment(Vector(-5, 24.85, 0), Vector(-5, 32.85, 0)), False)
sketch19.addGeometry(Part.LineSegment(Vector(-5, 32.85, 0), Vector(24.5, 32.85, 0)), False)
sketch19.addGeometry(Part.LineSegment(Vector(24.5, 32.85, 0), Vector(24.5, 24.85, 0)), False)
sketch19.addConstraint(Sketcher.Constraint("Coincident", 0, 2, 1, 1))
sketch19.addConstraint(Sketcher.Constraint("Coincident", 1, 2, 2, 1))
sketch19.addConstraint(Sketcher.Constraint("Coincident", 2, 2, 3, 1))
sketch19.addConstraint(Sketcher.Constraint("Coincident", 3, 2, 0, 1))
sketch19.addConstraint(Sketcher.Constraint("Horizontal", 0))
sketch19.addConstraint(Sketcher.Constraint("Vertical", 1))
sketch19.addConstraint(Sketcher.Constraint("Horizontal", 2))
sketch19.addConstraint(Sketcher.Constraint("Vertical", 3))
sketch19.addConstraint(Sketcher.Constraint("DistanceY", 1, 1, 1, 2, Q("8 mm")))
sketch19.addConstraint(Sketcher.Constraint("DistanceX", 0, 2, 0, 1, Q("29.5 mm")))
sketch19.addConstraint(Sketcher.Constraint("DistanceX", 0, 2, -1, 1, Q("5 mm")))
sketch19.addConstraint(Sketcher.Constraint("DistanceY", -1, 1, 0, 2, Q("24.85 mm")))
sketch19.setExpression("Constraints[8]", "Params.sketch19_height")
sketch19.setExpression("Constraints[9]", "Params.sketch19_width")
pad10 = body.newObject("PartDesign::Pad", "Pad009")
pad10.Profile = sketch19
pad10.setExpression("Length", "Params.pad10_length")
pad10.Reversed = True

# Sketch on XZ plane
sketch20 = body.newObject("Sketcher::SketchObject", "Sketch019")
sketch20.AttachmentSupport = (doc.getObject("XZ_Plane"), [""])
sketch20.MapMode = "FlatFace"
sketch20.AttachmentOffset = App.Placement(Vector(0, 0, 5), App.Rotation())
sketch20.addGeometry(Part.Circle(Vector(-4, 28.85, 0), Vector(0, 0, 1), 2.5), False)
sketch20.addConstraint(Sketcher.Constraint("Diameter", 0, Q("5 mm")))
sketch20.addConstraint(Sketcher.Constraint("DistanceX", 0, 3, -1, 1, Q("4 mm")))
sketch20.addConstraint(Sketcher.Constraint("DistanceY", -1, 1, 0, 3, Q("28.85 mm")))
sketch20.setExpression("Constraints[0]", "Params.sketch20_diameter")
pocket10 = body.newObject("PartDesign::Pocket", "Pocket009")
pocket10.Profile = sketch20
pocket10.setExpression("Length", "Params.pocket10_length")

# Sketch on XZ plane
sketch21 = body.newObject("Sketcher::SketchObject", "Sketch020")
sketch21.AttachmentSupport = (doc.getObject("XZ_Plane"), [""])
sketch21.MapMode = "FlatFace"
sketch21.AttachmentOffset = App.Placement(Vector(0, 0, -112.5), App.Rotation())
sketch21.addGeometry(Part.LineSegment(Vector(26.5, 36.85, 0), Vector(26.5, 49.85, 0)), False)
sketch21.addGeometry(Part.LineSegment(Vector(26.5, 49.85, 0), Vector(39.5, 49.85, 0)), False)
sketch21.addGeometry(Part.LineSegment(Vector(39.5, 49.85, 0), Vector(39.5, 36.85, 0)), False)
sketch21.addGeometry(Part.LineSegment(Vector(39.5, 36.85, 0), Vector(26.5, 36.85, 0)), False)
sketch21.addConstraint(Sketcher.Constraint("Coincident", 0, 2, 1, 1))
sketch21.addConstraint(Sketcher.Constraint("Coincident", 1, 2, 2, 1))
sketch21.addConstraint(Sketcher.Constraint("Coincident", 2, 2, 3, 1))
sketch21.addConstraint(Sketcher.Constraint("Coincident", 3, 2, 0, 1))
sketch21.addConstraint(Sketcher.Constraint("Vertical", 0))
sketch21.addConstraint(Sketcher.Constraint("Horizontal", 1))
sketch21.addConstraint(Sketcher.Constraint("Vertical", 2))
sketch21.addConstraint(Sketcher.Constraint("Horizontal", 3))
sketch21.addConstraint(Sketcher.Constraint("Equal", 3, 0))
sketch21.addConstraint(Sketcher.Constraint("DistanceX", 1, 1, 1, 2, Q("13 mm")))
sketch21.addConstraint(Sketcher.Constraint("DistanceX", -1, 1, 0, 2, Q("26.5 mm")))
sketch21.addConstraint(Sketcher.Constraint("DistanceY", -1, 1, 0, 2, Q("49.85 mm")))
sketch21.setExpression("Constraints[9]", "Params.sketch21_width")
pocket11 = body.newObject("PartDesign::Pocket", "Pocket010")
pocket11.Profile = sketch21
pocket11.setExpression("Length", "Params.pocket11_length")
pocket11.Reversed = True

# Sketch on XZ plane
sketch22 = body.newObject("Sketcher::SketchObject", "Sketch021")
sketch22.AttachmentSupport = (doc.getObject("XZ_Plane"), [""])
sketch22.MapMode = "FlatFace"
sketch22.AttachmentOffset = App.Placement(Vector(0, 0, 5), App.Rotation())
sketch22.addGeometry(Part.LineSegment(Vector(26.5, 49.85, 0), Vector(26.5, 41.85, 0)), False)
sketch22.addGeometry(Part.LineSegment(Vector(26.5, 41.85, 0), Vector(40.5, 41.85, 0)), False)
sketch22.addGeometry(Part.LineSegment(Vector(40.5, 41.85, 0), Vector(40.5, 49.85, 0)), False)
sketch22.addGeometry(Part.LineSegment(Vector(40.5, 49.85, 0), Vector(26.5, 49.85, 0)), False)
sketch22.addConstraint(Sketcher.Constraint("Coincident", 0, 2, 1, 1))
sketch22.addConstraint(Sketcher.Constraint("Coincident", 1, 2, 2, 1))
sketch22.addConstraint(Sketcher.Constraint("Coincident", 2, 2, 3, 1))
sketch22.addConstraint(Sketcher.Constraint("Coincident", 3, 2, 0, 1))
sketch22.addConstraint(Sketcher.Constraint("Vertical", 0))
sketch22.addConstraint(Sketcher.Constraint("Horizontal", 1))
sketch22.addConstraint(Sketcher.Constraint("Vertical", 2))
sketch22.addConstraint(Sketcher.Constraint("Horizontal", 3))
sketch22.addConstraint(Sketcher.Constraint("DistanceX", 1, 1, 1, 2, Q("14 mm")))
sketch22.addConstraint(Sketcher.Constraint("DistanceY", 0, 2, 0, 1, Q("8 mm")))
sketch22.addConstraint(Sketcher.Constraint("DistanceX", -1, 1, 0, 2, Q("26.5 mm")))
sketch22.addConstraint(Sketcher.Constraint("DistanceY", -1, 1, 0, 2, Q("41.85 mm")))
sketch22.setExpression("Constraints[8]", "Params.sketch22_width")
sketch22.setExpression("Constraints[9]", "Params.sketch22_height")
pocket12 = body.newObject("PartDesign::Pocket", "Pocket011")
pocket12.Profile = sketch22
pocket12.setExpression("Length", "Params.pocket12_length")

doc.recompute()
